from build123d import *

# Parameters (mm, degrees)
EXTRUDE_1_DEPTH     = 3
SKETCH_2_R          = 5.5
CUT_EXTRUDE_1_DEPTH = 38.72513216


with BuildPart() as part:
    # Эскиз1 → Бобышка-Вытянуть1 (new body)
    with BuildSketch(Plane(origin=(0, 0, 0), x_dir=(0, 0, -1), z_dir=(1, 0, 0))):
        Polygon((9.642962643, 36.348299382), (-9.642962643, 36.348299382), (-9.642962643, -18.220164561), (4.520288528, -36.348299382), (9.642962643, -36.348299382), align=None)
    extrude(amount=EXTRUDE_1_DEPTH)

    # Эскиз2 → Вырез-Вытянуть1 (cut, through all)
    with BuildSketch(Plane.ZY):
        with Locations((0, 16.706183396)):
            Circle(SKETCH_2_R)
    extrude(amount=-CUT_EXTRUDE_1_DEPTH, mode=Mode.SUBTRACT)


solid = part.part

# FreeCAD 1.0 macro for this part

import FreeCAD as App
import Part
import Sketcher
Q = App.Units.Quantity


def add_polygon(sketch, points):
    """Adds a closed chain of lines whose ends are joined by coincident constraints."""
    first, n = sketch.GeometryCount, len(points)
    for a, b in zip(points, points[1:] + points[:1]):
        sketch.addGeometry(Part.LineSegment(App.Vector(*a, 0), App.Vector(*b, 0)), False)
    for i in range(n):
        sketch.addConstraint(Sketcher.Constraint("Coincident", first + i, 2, first + (i + 1) % n, 1))

doc = App.newDocument("Part")
params = doc.addObject("Spreadsheet::Sheet", "Params")
for row, (alias, value) in enumerate([
    ("pad1_length", "3 mm"),
    ("sketch2_diameter", "11 mm"),
], start=1):
    params.set(f"A{row}", alias)
    params.set(f"B{row}", "=" + value)
    params.setAlias(f"B{row}", alias)

body = doc.addObject("PartDesign::Body", "Body")

sketch1 = doc.addObject("Sketcher::SketchObject", "Sketch")
body.addObject(sketch1)
sketch1.AttachmentSupport = (doc.YZ_Plane, [""])
sketch1.MapMode = "FlatFace"
add_polygon(sketch1, [(36, -10), (36, 10), (-18, 10), (-36, -5), (-36, -10)])
sketch1.addConstraint([
    Sketcher.Constraint("Vertical", 0),
    Sketcher.Constraint("Horizontal", 1),
    Sketcher.Constraint("Vertical", 3),
    Sketcher.Constraint("Horizontal", 4),
    Sketcher.Constraint("Symmetric", 0, 2, 3, 2, -1, 1),
    Sketcher.Constraint("Angle", 2, Q("-142 deg")),
    Sketcher.Constraint("DistanceX", 4, 1, 4, 2, 72.696599),
    Sketcher.Constraint("DistanceX", 1, 2, 1, 1, 54.568464),
    Sketcher.Constraint("DistanceY", 0, 1, 0, 2, 19.285925),
])
pad1 = doc.addObject("PartDesign::Pad", "Pad")
body.addObject(pad1)
pad1.Profile = sketch1
pad1.setExpression("Length", "Params.pad1_length")

sketch2 = doc.addObject("Sketcher::SketchObject", "Sketch001")
body.addObject(sketch2)
sketch2.AttachmentSupport = (doc.YZ_Plane, [""])
sketch2.MapMode = "FlatFace"
sketch2.addGeometry(Part.Circle(App.Vector(17, 0, 0), App.Vector(0, 0, 1), 6), False)
sketch2.addConstraint([
    Sketcher.Constraint("PointOnObject", 0, 3, -1),
    Sketcher.Constraint("Diameter", 0, 11.0),
    Sketcher.Constraint("DistanceX", -1, 1, 0, 3, 16.706183),
])
sketch2.setExpression("Constraints[1]", "Params.sketch2_diameter")
pocket1 = doc.addObject("PartDesign::Pocket", "Pocket")
body.addObject(pocket1)
pocket1.Profile = sketch2
pocket1.Type = "ThroughAll"
pocket1.Reversed = True

doc.recompute()
